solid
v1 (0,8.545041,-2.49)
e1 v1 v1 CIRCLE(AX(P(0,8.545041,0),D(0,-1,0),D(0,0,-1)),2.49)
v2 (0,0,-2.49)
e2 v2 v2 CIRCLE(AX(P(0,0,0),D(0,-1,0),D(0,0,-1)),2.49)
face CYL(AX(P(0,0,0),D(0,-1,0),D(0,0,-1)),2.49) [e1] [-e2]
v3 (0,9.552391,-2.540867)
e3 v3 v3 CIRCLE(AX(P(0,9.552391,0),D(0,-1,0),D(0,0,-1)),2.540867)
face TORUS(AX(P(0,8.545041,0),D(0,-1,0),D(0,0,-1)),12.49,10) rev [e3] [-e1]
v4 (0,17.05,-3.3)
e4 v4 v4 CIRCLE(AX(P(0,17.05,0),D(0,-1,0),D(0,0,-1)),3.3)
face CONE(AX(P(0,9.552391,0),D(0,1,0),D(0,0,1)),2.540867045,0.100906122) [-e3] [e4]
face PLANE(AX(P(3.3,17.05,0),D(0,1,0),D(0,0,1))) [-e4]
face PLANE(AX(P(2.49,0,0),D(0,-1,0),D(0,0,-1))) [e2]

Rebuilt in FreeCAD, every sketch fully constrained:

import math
import FreeCAD as App
import Part
import Sketcher

V = App.Vector

doc = App.newDocument("Part")
body = doc.addObject("PartDesign::Body", "Body")

# Sketch on XY plane
sketch1 = body.newObject("Sketcher::SketchObject", "Sketch")
sketch1.AttachmentSupport = (doc.getObject("XY_Plane"), [""])
sketch1.MapMode = "FlatFace"
sketch1.addGeometry([
    Part.LineSegment(V(0, 17.1, 0), V(0, 0, 0)),  # 0
    Part.LineSegment(V(0, 0, 0), V(2.5, 0, 0)),  # 1
    Part.LineSegment(V(2.5, 0, 0), V(2.5, 8.5, 0)),  # 2
    Part.ArcOfCircle(Part.Circle(V(12.5, 8.5, 0), V(0, 0, 1), 10), math.radians(174.22), math.radians(180)),  # 3
    Part.LineSegment(V(2.5, 9.6, 0), V(3.3, 17.1, 0)),  # 4
    Part.LineSegment(V(3.3, 17.1, 0), V(0, 17.1, 0)),  # 5
], False)
sketch1.addConstraint([
    Sketcher.Constraint("Coincident", 0, 2, 1, 1),
    Sketcher.Constraint("Coincident", 1, 2, 2, 1),
    Sketcher.Constraint("Tangent", 2, 2, 3, 2),
    Sketcher.Constraint("Tangent", 3, 1, 4, 1),
    Sketcher.Constraint("Coincident", 4, 2, 5, 1),
    Sketcher.Constraint("Coincident", 5, 2, 0, 1),
    Sketcher.Constraint("Vertical", 0),
    Sketcher.Constraint("Horizontal", 1),
    Sketcher.Constraint("Vertical", 2),
    Sketcher.Constraint("Horizontal", 5),
    Sketcher.Constraint("Coincident", 0, 2, -1, 1),
    Sketcher.Constraint("Radius", 3, 10.0),
    Sketcher.Constraint("DistanceX", 5, 2, 5, 1, 3.3),
    Sketcher.Constraint("DistanceX", 1, 1, 1, 2, 2.49),
    Sketcher.Constraint("DistanceY", 0, 2, 0, 1, 17.05),
    Sketcher.Constraint("DistanceY", 2, 1, 2, 2, 8.545041),
])
revolution = body.newObject("PartDesign::Revolution", "Revolution")
revolution.Profile = sketch1
revolution.ReferenceAxis = (sketch1, ["V_Axis"])
revolution.Angle = 360

doc.recompute()
